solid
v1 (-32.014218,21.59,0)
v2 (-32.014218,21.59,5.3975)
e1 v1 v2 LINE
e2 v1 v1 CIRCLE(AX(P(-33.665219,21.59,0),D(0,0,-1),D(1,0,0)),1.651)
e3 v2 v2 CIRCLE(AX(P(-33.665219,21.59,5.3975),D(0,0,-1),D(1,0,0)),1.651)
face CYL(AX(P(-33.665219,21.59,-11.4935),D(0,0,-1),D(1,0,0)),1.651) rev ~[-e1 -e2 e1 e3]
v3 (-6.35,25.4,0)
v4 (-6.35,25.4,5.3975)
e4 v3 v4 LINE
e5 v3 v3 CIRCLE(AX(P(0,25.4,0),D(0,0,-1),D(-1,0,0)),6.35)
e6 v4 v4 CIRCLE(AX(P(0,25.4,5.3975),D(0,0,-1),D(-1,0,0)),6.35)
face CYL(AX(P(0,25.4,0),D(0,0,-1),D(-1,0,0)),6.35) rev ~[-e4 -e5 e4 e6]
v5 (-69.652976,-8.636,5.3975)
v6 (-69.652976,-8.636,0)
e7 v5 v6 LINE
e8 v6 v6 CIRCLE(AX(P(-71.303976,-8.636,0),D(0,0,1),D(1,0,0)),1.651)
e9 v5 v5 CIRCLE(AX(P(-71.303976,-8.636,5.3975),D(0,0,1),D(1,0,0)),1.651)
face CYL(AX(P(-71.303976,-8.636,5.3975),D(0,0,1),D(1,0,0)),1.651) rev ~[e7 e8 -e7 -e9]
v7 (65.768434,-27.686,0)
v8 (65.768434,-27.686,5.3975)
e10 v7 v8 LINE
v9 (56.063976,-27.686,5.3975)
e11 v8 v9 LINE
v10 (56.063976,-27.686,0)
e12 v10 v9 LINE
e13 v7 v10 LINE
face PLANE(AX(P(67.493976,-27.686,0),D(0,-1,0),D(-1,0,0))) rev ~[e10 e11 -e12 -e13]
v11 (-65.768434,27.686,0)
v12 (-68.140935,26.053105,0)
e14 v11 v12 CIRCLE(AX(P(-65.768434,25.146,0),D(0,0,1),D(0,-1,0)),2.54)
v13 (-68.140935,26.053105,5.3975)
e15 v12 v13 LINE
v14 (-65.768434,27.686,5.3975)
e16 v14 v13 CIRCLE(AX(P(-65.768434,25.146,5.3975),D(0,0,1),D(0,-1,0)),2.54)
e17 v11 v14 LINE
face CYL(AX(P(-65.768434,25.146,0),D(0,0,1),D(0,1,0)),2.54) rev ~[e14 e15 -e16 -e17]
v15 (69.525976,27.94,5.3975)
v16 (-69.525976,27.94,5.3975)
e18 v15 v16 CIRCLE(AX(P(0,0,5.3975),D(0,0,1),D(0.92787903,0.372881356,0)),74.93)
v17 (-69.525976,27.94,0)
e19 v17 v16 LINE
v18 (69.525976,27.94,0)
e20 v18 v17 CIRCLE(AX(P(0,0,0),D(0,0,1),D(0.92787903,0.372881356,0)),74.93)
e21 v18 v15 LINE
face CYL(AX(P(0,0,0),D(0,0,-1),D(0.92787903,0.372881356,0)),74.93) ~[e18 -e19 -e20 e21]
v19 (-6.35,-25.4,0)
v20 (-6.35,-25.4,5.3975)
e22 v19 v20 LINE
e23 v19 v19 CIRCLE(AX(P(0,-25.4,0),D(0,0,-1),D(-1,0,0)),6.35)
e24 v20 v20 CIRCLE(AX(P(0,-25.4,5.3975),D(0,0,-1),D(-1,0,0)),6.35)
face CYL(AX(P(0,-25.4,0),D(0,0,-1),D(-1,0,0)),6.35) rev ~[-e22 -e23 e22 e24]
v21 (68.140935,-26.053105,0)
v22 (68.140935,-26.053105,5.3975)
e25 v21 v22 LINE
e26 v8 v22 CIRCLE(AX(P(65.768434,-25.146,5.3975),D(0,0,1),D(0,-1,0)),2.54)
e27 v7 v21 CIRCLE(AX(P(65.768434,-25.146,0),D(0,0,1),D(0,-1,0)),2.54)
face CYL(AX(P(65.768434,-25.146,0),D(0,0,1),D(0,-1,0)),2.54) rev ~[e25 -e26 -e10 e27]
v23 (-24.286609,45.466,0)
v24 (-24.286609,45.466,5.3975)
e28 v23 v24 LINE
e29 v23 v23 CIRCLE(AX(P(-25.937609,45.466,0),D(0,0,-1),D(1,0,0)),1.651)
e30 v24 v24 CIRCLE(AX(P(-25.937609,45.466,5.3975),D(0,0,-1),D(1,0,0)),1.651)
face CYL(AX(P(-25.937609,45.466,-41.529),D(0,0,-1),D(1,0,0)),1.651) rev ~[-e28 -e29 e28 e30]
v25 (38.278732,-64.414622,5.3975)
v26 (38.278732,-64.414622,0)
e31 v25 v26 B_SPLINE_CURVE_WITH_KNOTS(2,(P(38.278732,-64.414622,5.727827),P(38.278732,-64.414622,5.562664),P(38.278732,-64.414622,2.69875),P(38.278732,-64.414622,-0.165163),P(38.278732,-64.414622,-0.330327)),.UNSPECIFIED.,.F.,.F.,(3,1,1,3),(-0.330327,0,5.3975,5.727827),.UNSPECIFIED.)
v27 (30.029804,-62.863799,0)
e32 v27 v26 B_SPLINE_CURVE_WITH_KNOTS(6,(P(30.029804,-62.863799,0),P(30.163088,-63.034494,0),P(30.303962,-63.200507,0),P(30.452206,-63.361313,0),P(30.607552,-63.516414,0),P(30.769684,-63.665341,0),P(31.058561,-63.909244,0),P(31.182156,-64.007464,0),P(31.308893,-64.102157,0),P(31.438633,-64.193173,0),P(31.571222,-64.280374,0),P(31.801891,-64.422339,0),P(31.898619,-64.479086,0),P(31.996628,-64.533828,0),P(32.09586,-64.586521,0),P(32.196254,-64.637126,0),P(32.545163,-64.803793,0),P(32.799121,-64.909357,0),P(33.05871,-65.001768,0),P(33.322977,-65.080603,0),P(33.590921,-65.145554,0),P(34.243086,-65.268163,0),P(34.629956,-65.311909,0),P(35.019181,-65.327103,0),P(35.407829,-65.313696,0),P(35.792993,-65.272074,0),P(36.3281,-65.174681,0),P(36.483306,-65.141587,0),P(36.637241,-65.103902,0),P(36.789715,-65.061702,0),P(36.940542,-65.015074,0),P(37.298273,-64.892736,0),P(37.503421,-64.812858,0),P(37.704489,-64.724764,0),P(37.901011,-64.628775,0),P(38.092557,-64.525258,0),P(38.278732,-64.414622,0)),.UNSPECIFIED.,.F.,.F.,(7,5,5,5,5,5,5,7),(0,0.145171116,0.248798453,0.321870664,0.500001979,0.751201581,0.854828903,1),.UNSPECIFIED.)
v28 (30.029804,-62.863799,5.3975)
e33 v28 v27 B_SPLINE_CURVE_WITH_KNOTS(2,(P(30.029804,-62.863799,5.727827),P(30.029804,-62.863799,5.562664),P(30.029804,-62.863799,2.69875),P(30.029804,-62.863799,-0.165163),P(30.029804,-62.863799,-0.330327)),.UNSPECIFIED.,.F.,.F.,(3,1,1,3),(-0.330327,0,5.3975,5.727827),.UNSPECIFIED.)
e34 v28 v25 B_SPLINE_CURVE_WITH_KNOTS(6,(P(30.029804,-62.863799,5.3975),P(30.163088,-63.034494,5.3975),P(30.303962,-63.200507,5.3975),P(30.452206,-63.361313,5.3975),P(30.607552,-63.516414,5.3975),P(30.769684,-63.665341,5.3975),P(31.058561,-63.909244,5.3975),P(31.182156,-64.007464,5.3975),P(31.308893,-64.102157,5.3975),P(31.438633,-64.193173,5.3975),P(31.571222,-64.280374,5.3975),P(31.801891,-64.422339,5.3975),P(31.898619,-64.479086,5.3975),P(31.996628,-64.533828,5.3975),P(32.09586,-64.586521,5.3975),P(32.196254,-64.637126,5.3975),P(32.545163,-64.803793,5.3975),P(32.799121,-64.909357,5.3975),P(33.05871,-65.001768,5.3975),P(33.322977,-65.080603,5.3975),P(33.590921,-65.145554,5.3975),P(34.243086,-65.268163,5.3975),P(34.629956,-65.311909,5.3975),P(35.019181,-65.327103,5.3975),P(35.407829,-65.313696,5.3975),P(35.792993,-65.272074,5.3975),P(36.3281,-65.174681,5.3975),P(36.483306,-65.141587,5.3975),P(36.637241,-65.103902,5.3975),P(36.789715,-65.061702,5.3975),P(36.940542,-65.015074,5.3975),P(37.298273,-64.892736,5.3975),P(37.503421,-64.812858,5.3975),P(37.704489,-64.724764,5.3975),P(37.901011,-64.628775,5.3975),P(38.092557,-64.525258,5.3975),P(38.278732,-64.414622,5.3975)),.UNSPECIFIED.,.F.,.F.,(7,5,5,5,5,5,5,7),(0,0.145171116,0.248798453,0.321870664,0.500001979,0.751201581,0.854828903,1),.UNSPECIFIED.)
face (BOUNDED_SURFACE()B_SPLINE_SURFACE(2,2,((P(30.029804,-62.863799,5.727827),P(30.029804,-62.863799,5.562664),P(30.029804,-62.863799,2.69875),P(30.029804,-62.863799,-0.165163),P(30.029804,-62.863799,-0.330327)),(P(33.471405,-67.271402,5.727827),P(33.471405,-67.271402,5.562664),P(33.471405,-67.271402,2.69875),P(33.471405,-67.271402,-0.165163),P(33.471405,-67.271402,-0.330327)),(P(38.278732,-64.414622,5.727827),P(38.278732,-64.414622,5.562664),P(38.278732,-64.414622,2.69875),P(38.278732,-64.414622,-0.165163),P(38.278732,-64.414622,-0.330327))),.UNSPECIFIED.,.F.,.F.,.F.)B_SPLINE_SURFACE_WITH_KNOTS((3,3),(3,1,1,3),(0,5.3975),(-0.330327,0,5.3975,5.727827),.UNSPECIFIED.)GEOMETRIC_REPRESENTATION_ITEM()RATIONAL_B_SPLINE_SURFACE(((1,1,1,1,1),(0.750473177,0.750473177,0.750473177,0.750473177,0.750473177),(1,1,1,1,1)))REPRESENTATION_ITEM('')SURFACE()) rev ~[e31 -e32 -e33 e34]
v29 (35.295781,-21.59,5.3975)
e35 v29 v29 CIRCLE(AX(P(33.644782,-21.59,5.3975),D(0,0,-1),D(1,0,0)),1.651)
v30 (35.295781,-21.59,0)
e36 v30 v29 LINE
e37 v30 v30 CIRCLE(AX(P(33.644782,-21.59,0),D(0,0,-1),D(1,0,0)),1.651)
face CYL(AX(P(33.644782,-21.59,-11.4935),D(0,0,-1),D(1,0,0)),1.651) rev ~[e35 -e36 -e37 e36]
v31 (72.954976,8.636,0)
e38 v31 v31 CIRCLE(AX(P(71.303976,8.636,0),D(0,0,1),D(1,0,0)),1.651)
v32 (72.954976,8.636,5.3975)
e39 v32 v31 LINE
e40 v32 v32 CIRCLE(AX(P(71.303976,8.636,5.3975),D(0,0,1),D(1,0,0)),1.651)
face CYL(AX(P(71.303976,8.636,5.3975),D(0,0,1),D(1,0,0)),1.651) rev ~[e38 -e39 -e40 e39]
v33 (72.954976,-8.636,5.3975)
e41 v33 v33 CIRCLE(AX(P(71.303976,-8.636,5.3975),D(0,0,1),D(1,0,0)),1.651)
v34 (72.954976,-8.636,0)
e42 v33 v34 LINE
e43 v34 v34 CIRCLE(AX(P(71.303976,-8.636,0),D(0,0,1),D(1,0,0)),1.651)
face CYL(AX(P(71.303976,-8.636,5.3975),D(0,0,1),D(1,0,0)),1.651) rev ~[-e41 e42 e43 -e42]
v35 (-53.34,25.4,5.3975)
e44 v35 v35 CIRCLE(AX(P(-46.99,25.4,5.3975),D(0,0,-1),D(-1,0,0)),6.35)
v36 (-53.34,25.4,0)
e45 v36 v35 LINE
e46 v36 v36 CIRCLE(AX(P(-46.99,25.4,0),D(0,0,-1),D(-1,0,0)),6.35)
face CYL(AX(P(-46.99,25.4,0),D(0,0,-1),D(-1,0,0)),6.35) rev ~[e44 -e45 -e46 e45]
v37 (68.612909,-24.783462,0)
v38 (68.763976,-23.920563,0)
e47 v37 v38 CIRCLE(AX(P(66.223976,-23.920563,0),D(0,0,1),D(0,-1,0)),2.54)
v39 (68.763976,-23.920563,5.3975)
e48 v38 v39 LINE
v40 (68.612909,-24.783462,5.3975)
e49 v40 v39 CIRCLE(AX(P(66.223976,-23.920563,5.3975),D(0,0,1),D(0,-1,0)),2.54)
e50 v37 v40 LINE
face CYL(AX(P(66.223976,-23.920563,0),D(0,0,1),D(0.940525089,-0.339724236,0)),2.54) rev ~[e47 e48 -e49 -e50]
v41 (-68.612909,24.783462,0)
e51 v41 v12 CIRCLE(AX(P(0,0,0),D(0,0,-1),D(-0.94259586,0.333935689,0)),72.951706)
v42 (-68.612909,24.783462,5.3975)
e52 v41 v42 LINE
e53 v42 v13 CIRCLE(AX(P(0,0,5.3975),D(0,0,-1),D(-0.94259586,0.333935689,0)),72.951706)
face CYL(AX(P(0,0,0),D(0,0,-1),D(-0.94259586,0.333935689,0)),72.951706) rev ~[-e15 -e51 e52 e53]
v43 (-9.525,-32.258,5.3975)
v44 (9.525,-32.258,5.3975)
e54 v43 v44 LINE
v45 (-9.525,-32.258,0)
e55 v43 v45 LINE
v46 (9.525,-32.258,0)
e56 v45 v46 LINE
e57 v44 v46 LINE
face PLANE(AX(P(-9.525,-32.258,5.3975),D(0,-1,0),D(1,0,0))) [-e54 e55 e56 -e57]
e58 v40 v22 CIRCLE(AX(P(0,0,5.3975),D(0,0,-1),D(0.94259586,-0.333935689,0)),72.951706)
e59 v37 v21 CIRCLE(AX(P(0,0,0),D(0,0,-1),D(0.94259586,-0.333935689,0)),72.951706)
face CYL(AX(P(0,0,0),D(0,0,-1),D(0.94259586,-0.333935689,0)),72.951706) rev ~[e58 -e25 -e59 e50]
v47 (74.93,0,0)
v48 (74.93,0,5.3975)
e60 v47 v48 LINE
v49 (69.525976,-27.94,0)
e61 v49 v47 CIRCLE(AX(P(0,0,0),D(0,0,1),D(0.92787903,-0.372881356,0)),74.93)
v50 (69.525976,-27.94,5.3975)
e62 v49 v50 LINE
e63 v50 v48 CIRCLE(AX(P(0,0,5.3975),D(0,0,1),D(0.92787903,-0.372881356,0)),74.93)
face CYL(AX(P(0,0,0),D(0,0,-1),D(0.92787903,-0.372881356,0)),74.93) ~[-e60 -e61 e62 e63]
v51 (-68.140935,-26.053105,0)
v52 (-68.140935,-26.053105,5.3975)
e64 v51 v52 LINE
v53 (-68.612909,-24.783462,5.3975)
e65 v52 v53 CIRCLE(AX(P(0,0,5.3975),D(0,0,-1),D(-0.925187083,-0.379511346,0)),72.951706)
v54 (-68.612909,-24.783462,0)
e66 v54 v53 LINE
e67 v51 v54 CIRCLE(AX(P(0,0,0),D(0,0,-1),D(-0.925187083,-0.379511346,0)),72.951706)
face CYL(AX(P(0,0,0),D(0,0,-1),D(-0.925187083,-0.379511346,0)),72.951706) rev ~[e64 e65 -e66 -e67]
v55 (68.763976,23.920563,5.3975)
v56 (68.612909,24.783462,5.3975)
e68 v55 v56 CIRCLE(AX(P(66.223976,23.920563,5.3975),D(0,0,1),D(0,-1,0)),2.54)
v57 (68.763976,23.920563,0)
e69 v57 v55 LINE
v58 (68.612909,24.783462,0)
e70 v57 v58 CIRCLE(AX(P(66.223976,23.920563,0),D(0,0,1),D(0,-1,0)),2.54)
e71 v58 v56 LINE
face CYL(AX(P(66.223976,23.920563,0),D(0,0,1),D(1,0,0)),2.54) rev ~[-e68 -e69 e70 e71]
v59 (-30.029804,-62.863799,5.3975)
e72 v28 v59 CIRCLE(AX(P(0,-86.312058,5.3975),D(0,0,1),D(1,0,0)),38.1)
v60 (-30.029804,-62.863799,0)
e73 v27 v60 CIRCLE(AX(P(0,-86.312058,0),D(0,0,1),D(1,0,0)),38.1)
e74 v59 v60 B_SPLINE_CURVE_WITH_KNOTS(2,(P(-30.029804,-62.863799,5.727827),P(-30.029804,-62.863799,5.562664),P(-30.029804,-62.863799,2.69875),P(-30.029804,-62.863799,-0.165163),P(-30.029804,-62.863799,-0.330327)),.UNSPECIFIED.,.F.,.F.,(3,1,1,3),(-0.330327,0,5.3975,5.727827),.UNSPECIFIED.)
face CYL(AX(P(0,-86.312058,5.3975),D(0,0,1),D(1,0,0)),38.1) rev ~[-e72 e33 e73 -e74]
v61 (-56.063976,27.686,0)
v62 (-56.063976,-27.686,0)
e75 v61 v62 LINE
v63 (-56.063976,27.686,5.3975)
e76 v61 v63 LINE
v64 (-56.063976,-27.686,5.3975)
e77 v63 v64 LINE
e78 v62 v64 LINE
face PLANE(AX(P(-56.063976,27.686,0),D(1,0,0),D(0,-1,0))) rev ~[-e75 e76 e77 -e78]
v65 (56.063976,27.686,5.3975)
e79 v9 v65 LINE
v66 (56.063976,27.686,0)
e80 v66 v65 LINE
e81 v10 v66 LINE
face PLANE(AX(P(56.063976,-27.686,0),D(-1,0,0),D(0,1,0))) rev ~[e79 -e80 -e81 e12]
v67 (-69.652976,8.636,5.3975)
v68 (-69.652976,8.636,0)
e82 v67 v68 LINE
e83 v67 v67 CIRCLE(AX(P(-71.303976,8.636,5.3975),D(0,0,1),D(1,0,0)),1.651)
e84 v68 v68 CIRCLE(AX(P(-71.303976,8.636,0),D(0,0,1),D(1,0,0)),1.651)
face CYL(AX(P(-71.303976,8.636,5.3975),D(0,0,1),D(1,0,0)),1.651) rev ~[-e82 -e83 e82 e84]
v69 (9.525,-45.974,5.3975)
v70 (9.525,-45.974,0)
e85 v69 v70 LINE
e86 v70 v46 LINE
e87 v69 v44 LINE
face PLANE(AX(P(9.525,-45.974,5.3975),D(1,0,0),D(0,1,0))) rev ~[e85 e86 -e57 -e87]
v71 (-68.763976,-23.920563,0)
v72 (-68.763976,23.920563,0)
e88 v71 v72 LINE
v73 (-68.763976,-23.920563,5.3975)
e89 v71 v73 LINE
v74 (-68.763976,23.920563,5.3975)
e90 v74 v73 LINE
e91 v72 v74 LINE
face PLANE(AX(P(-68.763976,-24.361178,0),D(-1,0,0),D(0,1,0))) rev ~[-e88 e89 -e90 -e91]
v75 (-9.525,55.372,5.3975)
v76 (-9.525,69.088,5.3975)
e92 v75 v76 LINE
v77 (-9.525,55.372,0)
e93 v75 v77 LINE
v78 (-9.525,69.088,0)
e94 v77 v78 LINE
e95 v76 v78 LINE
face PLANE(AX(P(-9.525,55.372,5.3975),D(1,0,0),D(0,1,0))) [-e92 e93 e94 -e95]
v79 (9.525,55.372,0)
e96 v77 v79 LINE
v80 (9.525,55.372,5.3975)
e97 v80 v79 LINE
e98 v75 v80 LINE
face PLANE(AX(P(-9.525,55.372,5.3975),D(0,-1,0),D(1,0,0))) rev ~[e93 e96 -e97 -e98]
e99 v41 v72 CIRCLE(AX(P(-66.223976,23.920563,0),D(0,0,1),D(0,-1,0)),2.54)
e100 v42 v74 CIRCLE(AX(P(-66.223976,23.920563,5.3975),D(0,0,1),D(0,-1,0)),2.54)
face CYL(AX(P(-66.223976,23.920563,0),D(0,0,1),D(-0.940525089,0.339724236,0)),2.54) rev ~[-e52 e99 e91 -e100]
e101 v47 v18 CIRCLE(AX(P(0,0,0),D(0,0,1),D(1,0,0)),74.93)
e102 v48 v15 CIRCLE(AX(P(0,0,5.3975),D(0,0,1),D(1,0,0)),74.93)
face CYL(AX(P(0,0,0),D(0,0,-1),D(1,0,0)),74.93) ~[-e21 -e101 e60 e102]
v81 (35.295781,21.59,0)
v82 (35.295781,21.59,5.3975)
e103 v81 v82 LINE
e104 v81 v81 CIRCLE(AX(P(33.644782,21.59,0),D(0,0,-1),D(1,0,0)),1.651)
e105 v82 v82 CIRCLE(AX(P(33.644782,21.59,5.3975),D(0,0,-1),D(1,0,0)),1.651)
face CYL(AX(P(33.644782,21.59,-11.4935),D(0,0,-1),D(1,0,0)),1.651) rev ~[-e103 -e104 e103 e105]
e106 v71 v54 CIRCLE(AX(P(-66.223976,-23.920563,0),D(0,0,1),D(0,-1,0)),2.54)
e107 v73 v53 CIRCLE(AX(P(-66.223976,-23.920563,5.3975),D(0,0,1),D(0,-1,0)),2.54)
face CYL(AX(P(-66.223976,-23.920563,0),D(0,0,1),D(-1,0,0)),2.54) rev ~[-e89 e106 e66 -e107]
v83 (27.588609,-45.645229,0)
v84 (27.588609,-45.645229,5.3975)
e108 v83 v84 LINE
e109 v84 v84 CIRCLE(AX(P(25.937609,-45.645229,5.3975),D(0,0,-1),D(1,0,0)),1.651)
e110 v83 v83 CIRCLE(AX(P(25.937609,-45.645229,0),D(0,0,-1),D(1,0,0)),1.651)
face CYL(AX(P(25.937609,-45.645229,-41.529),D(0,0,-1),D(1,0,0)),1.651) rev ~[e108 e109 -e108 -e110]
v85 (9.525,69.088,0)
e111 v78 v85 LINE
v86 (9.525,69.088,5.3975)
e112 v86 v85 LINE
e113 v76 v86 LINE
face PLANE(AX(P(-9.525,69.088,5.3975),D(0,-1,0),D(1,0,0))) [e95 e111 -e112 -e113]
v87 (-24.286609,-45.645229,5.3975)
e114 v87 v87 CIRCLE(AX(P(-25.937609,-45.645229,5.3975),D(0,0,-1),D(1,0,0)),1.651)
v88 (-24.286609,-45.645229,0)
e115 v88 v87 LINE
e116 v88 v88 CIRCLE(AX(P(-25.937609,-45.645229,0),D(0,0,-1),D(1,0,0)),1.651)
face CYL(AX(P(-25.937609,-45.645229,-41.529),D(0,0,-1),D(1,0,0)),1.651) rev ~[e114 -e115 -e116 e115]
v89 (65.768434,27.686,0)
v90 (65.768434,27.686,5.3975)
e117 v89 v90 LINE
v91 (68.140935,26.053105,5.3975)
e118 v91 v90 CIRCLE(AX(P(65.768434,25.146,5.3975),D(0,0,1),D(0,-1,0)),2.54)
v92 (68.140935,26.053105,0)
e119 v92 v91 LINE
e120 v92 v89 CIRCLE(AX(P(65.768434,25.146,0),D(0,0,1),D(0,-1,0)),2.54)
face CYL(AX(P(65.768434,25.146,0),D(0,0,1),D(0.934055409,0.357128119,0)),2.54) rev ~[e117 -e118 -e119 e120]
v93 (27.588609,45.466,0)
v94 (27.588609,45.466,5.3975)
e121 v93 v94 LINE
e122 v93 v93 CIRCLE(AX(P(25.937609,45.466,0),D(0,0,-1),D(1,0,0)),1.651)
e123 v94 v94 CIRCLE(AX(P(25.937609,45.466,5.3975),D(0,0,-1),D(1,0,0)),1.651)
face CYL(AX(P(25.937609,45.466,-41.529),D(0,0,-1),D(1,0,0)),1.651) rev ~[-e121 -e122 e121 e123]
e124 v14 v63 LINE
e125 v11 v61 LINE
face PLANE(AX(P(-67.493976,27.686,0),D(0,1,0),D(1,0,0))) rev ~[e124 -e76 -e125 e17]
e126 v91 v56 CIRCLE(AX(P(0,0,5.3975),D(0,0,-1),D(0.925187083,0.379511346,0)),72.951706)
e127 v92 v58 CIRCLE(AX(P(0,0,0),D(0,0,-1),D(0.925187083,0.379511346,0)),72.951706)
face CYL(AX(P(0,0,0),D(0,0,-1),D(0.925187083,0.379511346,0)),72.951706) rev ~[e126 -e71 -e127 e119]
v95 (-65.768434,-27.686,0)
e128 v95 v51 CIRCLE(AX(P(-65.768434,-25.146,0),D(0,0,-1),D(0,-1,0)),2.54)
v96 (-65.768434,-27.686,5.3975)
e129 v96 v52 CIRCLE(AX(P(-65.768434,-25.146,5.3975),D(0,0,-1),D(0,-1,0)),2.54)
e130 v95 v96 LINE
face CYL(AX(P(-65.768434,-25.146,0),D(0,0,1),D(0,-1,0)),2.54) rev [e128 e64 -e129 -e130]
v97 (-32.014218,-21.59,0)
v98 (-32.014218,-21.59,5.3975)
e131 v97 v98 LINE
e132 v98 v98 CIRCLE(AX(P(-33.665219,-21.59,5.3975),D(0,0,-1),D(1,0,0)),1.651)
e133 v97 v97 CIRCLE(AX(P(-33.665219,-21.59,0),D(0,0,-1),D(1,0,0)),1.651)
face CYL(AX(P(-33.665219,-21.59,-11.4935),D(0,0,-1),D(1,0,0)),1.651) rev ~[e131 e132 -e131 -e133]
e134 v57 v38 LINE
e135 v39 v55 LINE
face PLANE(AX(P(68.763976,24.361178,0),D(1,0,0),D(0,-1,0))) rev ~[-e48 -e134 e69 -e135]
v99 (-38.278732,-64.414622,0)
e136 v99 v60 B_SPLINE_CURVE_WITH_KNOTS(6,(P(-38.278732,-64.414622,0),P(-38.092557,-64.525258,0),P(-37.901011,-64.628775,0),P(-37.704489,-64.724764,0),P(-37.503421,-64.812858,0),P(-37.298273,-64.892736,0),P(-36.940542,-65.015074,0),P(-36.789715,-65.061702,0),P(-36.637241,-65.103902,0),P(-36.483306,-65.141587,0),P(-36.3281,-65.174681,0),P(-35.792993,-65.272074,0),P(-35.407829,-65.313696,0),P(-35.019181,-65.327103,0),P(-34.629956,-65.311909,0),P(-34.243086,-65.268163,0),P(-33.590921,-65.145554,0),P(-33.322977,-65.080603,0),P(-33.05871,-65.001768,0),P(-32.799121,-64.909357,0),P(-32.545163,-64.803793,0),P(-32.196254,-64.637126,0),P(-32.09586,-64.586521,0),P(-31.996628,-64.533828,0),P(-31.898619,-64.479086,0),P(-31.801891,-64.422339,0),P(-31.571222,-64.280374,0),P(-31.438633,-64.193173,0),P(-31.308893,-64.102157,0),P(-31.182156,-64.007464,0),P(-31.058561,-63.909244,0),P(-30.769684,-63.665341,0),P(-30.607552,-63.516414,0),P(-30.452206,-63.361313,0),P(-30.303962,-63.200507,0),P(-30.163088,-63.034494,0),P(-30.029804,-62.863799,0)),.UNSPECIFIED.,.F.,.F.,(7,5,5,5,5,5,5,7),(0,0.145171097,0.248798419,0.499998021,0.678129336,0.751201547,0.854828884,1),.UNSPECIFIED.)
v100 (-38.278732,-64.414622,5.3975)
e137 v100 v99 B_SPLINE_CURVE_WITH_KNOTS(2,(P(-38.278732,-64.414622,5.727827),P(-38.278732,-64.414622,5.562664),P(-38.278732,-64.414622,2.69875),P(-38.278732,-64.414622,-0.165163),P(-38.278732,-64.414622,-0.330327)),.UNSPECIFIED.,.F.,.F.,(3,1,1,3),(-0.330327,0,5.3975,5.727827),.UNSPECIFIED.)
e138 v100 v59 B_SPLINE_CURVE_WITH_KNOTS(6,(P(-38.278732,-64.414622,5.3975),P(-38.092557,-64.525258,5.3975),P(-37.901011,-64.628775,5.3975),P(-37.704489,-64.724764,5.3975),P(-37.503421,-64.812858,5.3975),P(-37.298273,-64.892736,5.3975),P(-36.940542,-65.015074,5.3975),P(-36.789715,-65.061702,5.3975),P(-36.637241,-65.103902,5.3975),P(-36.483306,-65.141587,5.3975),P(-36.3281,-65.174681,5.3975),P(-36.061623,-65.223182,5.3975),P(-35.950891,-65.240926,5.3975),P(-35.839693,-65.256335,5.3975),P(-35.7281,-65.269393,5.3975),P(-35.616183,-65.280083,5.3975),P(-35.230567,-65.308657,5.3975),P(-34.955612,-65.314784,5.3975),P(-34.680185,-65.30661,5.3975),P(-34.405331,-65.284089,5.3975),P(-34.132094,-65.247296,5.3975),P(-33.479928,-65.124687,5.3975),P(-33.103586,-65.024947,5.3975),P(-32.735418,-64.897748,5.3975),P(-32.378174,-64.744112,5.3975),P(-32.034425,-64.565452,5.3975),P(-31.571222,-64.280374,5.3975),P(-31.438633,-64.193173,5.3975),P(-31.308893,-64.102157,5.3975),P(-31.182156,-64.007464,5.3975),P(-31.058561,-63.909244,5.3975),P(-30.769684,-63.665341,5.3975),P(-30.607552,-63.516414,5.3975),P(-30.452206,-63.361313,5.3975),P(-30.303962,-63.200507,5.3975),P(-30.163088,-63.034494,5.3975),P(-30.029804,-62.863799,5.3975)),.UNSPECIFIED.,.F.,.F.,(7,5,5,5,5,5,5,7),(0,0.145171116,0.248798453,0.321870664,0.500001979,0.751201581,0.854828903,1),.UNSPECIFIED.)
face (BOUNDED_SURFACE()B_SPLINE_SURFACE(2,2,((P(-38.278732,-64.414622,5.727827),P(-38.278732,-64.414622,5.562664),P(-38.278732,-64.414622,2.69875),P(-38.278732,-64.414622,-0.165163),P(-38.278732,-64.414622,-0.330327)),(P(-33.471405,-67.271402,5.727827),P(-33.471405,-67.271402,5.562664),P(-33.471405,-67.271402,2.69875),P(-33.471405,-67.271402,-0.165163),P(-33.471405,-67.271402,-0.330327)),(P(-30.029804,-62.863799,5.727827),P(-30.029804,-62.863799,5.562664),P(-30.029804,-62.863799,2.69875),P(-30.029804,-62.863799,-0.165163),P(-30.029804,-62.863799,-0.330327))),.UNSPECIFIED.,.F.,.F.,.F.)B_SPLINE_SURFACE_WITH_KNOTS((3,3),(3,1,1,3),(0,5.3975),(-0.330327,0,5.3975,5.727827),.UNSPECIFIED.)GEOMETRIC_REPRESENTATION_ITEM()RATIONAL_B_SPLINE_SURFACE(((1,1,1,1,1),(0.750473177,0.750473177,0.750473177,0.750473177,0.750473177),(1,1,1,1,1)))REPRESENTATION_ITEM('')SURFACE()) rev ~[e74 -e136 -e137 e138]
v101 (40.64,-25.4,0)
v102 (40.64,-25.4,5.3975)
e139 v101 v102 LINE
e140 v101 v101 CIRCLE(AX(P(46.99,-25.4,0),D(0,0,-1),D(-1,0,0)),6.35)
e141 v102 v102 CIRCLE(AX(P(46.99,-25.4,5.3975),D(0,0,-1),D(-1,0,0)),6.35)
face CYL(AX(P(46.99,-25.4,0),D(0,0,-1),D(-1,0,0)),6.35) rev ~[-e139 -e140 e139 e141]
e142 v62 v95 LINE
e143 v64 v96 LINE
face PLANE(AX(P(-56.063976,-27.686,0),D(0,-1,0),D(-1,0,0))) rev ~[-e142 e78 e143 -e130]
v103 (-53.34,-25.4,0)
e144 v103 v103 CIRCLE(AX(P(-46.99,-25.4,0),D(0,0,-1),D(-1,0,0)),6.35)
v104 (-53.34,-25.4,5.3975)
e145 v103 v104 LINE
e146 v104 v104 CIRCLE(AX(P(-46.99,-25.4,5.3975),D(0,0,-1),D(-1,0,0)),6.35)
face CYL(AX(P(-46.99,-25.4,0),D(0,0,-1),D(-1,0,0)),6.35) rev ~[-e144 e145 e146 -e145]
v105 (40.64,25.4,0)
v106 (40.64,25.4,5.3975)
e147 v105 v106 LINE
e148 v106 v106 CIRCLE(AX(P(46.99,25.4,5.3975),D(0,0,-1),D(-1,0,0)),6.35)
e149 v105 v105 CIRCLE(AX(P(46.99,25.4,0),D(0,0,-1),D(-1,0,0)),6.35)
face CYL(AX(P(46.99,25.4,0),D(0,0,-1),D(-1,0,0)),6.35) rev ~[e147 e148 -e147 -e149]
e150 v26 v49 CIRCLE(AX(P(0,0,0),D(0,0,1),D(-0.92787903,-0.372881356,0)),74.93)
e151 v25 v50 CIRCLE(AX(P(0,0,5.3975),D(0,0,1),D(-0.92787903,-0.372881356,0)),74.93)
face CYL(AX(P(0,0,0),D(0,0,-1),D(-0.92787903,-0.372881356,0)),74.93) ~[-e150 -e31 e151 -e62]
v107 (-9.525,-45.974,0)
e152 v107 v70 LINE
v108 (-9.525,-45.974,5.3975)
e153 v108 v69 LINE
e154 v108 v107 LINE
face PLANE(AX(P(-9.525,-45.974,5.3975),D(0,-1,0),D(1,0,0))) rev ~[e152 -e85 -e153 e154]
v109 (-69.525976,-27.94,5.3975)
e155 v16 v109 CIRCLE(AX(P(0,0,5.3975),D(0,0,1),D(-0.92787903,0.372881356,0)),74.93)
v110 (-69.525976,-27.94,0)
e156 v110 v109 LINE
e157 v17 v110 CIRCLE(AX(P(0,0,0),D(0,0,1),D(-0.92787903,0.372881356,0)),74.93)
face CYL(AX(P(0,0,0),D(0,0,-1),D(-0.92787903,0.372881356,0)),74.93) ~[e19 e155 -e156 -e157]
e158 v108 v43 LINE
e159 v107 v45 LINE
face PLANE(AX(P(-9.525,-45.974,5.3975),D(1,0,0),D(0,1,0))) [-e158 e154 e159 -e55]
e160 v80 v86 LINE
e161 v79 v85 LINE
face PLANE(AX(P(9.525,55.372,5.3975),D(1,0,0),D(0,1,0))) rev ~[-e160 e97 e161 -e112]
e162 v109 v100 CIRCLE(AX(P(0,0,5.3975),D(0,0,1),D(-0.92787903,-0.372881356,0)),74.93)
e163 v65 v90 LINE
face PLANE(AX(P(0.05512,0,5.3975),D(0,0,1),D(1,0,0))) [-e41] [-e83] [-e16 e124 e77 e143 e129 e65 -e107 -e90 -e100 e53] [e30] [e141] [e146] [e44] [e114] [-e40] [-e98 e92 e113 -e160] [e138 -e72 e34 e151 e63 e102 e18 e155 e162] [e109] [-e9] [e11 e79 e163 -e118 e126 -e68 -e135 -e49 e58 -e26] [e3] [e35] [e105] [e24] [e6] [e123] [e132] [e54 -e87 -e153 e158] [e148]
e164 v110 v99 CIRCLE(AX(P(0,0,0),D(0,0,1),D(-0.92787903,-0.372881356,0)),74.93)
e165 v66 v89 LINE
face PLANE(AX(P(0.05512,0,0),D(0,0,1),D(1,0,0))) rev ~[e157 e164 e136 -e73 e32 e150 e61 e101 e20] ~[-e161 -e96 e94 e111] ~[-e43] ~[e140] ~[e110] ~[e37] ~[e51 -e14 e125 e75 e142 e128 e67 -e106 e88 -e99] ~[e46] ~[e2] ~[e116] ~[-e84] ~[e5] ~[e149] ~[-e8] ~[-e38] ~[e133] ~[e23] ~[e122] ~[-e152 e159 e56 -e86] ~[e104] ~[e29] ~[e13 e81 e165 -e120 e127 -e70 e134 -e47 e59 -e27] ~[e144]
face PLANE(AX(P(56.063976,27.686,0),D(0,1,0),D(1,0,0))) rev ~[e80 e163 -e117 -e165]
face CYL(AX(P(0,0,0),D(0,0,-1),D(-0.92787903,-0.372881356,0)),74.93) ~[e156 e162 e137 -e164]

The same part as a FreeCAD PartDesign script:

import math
import FreeCAD as App
import Part
import Sketcher
Q = App.Units.Quantity


def edges_at(feature, points):
    """Names of the edges that pass closest to the given points."""
    edges = feature.Shape.Edges
    near = lambda p: min(range(len(edges)), key=lambda i: edges[i].distToShape(Part.Vertex(*p))[0])
    return sorted({f"Edge{near(p) + 1}" for p in points})

doc = App.newDocument("Part")
body = doc.addObject("PartDesign::Body", "Body")

# Sketch on XY plane
sketch1 = body.newObject("Sketcher::SketchObject", "Sketch")
sketch1.AttachmentSupport = (doc.getObject("XY_Plane"), [""])
sketch1.MapMode = "FlatFace"
sketch1.addGeometry(Part.ArcOfCircle(Part.Circle(App.Vector(0, 0, 0), App.Vector(0, 0, 1), 74.93), math.radians(158.106572), math.radians(201.893428)), False)
sketch1.addGeometry(Part.ArcOfCircle(Part.Circle(App.Vector(0, 0, 0), App.Vector(0, 0, 1), 74.93), math.radians(-158.106572), math.radians(-21.893428)), False)
sketch1.addGeometry(Part.ArcOfCircle(Part.Circle(App.Vector(0, 0, 0), App.Vector(0, 0, 1), 74.93), math.radians(-21.893428), math.radians(0)), False)
sketch1.addGeometry(Part.ArcOfCircle(Part.Circle(App.Vector(0, 0, 0), App.Vector(0, 0, 1), 74.93), math.radians(0), math.radians(21.893428)), False)
sketch1.addGeometry(Part.ArcOfCircle(Part.Circle(App.Vector(0, 0, 0), App.Vector(0, 0, 1), 74.93), math.radians(21.893428), math.radians(158.106572)), False)
sketch1.addGeometry(Part.LineSegment(App.Vector(-67.493976, -27.686, 0), App.Vector(-67.493976, 27.686, 0)), False)
sketch1.addGeometry(Part.LineSegment(App.Vector(-67.493976, 27.686, 0), App.Vector(-56.063976, 27.686, 0)), False)
sketch1.addGeometry(Part.LineSegment(App.Vector(-56.063976, 27.686, 0), App.Vector(-56.063976, -27.686, 0)), False)
sketch1.addGeometry(Part.LineSegment(App.Vector(-56.063976, -27.686, 0), App.Vector(-67.493976, -27.686, 0)), False)
sketch1.addGeometry(Part.LineSegment(App.Vector(56.063976, 27.686, 0), App.Vector(67.493976, 27.686, 0)), False)
sketch1.addGeometry(Part.LineSegment(App.Vector(67.493976, 27.686, 0), App.Vector(67.493976, -27.686, 0)), False)
sketch1.addGeometry(Part.LineSegment(App.Vector(67.493976, -27.686, 0), App.Vector(56.063976, -27.686, 0)), False)
sketch1.addGeometry(Part.LineSegment(App.Vector(56.063976, -27.686, 0), App.Vector(56.063976, 27.686, 0)), False)
sketch1.addConstraint(Sketcher.Constraint("Tangent", 0, 2, 1, 1))
sketch1.addConstraint(Sketcher.Constraint("Tangent", 1, 2, 2, 1))
sketch1.addConstraint(Sketcher.Constraint("Tangent", 2, 2, 3, 1))
sketch1.addConstraint(Sketcher.Constraint("Tangent", 3, 2, 4, 1))
sketch1.addConstraint(Sketcher.Constraint("Tangent", 4, 2, 0, 1))
sketch1.addConstraint(Sketcher.Constraint("Coincident", 5, 2, 6, 1))
sketch1.addConstraint(Sketcher.Constraint("Coincident", 6, 2, 7, 1))
sketch1.addConstraint(Sketcher.Constraint("Coincident", 7, 2, 8, 1))
sketch1.addConstraint(Sketcher.Constraint("Coincident", 8, 2, 5, 1))
sketch1.addConstraint(Sketcher.Constraint("Coincident", 9, 2, 10, 1))
sketch1.addConstraint(Sketcher.Constraint("Coincident", 10, 2, 11, 1))
sketch1.addConstraint(Sketcher.Constraint("Coincident", 11, 2, 12, 1))
sketch1.addConstraint(Sketcher.Constraint("Coincident", 12, 2, 9, 1))
sketch1.addConstraint(Sketcher.Constraint("Vertical", 5))
sketch1.addConstraint(Sketcher.Constraint("Horizontal", 6))
sketch1.addConstraint(Sketcher.Constraint("Vertical", 7))
sketch1.addConstraint(Sketcher.Constraint("Horizontal", 8))
sketch1.addConstraint(Sketcher.Constraint("Horizontal", 9))
sketch1.addConstraint(Sketcher.Constraint("Vertical", 10))
sketch1.addConstraint(Sketcher.Constraint("Horizontal", 11))
sketch1.addConstraint(Sketcher.Constraint("Vertical", 12))
sketch1.addConstraint(Sketcher.Constraint("Coincident", 0, 3, -1, 1))
sketch1.addConstraint(Sketcher.Constraint("Coincident", 2, 3, -1, 1))
sketch1.addConstraint(Sketcher.Constraint("Symmetric", 8, 2, 9, 2, -1, 1))
sketch1.addConstraint(Sketcher.Constraint("Symmetric", 6, 2, 11, 2, -1, 1))
sketch1.addConstraint(Sketcher.Constraint("PointOnObject", 2, 2, -1))
sketch1.addConstraint(Sketcher.Constraint("Horizontal", 0, 2, 1, 2))
sketch1.addConstraint(Sketcher.Constraint("Horizontal", 3, 2, 4, 2))
sketch1.addConstraint(Sketcher.Constraint("Horizontal", 6, 2, 9, 2))
sketch1.addConstraint(Sketcher.Constraint("Vertical", 1, 2, 3, 2))
sketch1.addConstraint(Sketcher.Constraint("Radius", 0, Q("2.95 in")))
sketch1.addConstraint(Sketcher.Constraint("DistanceX", 6, 1, 6, 2, Q("0.45 in")))
sketch1.addConstraint(Sketcher.Constraint("DistanceY", 5, 1, 5, 2, Q("2.18 in")))
sketch1.addConstraint(Sketcher.Constraint("DistanceY", 0, 2, -1, 1, Q("1.1 in")))
sketch1.addConstraint(Sketcher.Constraint("DistanceX", 4, 2, 5, 2, Q("0.08 in")))
pad1 = body.newObject("PartDesign::Pad", "Pad")
pad1.Profile = sketch1
pad1.Length = Q("0.2125 in")

# Sketch on XY plane
sketch2 = body.newObject("Sketcher::SketchObject", "Sketch001")
sketch2.AttachmentSupport = (doc.getObject("XY_Plane"), [""])
sketch2.MapMode = "FlatFace"
sketch2.AttachmentOffset = App.Placement(App.Vector(0, 0, 0.2125 * 25.4), App.Rotation())
sketch2.addGeometry(Part.LineSegment(App.Vector(-9.525, 69.088, 0), App.Vector(-9.525, 55.372, 0)), False)
sketch2.addGeometry(Part.LineSegment(App.Vector(-9.525, 55.372, 0), App.Vector(9.525, 55.372, 0)), False)
sketch2.addGeometry(Part.LineSegment(App.Vector(9.525, 55.372, 0), App.Vector(9.525, 69.088, 0)), False)
sketch2.addGeometry(Part.LineSegment(App.Vector(9.525, 69.088, 0), App.Vector(-9.525, 69.088, 0)), False)
sketch2.addConstraint(Sketcher.Constraint("Coincident", 0, 2, 1, 1))
sketch2.addConstraint(Sketcher.Constraint("Coincident", 1, 2, 2, 1))
sketch2.addConstraint(Sketcher.Constraint("Coincident", 2, 2, 3, 1))
sketch2.addConstraint(Sketcher.Constraint("Coincident", 3, 2, 0, 1))
sketch2.addConstraint(Sketcher.Constraint("Vertical", 0))
sketch2.addConstraint(Sketcher.Constraint("Horizontal", 1))
sketch2.addConstraint(Sketcher.Constraint("Vertical", 2))
sketch2.addConstraint(Sketcher.Constraint("Horizontal", 3))
sketch2.addConstraint(Sketcher.Constraint("DistanceX", 1, 1, 1, 2, Q("0.75 in")))
sketch2.addConstraint(Sketcher.Constraint("DistanceY", 0, 2, 0, 1, Q("0.54 in")))
sketch2.addConstraint(Sketcher.Constraint("DistanceY", -1, 1, 0, 2, Q("2.18 in")))
sketch2.addConstraint(Sketcher.Constraint("DistanceX", 0, 2, -1, 1, Q("0.375 in")))
pocket1 = body.newObject("PartDesign::Pocket", "Pocket")
pocket1.Profile = sketch2
pocket1.Type = "ThroughAll"

# Sketch on XY plane
sketch3 = body.newObject("Sketcher::SketchObject", "Sketch002")
sketch3.AttachmentSupport = (doc.getObject("XY_Plane"), [""])
sketch3.MapMode = "FlatFace"
sketch3.AttachmentOffset = App.Placement(App.Vector(0, 0, 0.2125 * 25.4), App.Rotation())
sketch3.addGeometry(Part.Circle(App.Vector(0, -86.312058, 0), App.Vector(0, 0, 1), 38.1), False)
sketch3.addConstraint(Sketcher.Constraint("PointOnObject", 0, 3, -2))
sketch3.addConstraint(Sketcher.Constraint("Diameter", 0, Q("3 in")))
sketch3.addConstraint(Sketcher.Constraint("DistanceY", 0, 3, -1, 1, 86.312058))
pocket2 = body.newObject("PartDesign::Pocket", "Pocket001")
pocket2.Profile = sketch3
pocket2.Type = "ThroughAll"
doc.recompute()

fillet = body.newObject("PartDesign::Fillet", "Fillet")
fillet.Base = (pocket2, edges_at(pocket2, [(-33.001, -67.271, 2.699), (33.001, -67.271, 2.699)]))
fillet.Radius = Q("0.25 in")

# Sketch on XY plane
sketch4 = body.newObject("Sketcher::SketchObject", "Sketch003")
sketch4.AttachmentSupport = (doc.getObject("XY_Plane"), [""])
sketch4.MapMode = "FlatFace"
sketch4.AttachmentOffset = App.Placement(App.Vector(0, 0, -0.4525 * 25.4), App.Rotation())
sketch4.addGeometry(Part.Circle(App.Vector(-33.665219, 21.59, 0), App.Vector(0, 0, 1), 1.651), False)
sketch4.addGeometry(Part.Circle(App.Vector(-33.665219, -21.59, 0), App.Vector(0, 0, 1), 1.651), False)
sketch4.addGeometry(Part.Circle(App.Vector(33.644782, -21.59, 0), App.Vector(0, 0, 1), 1.651), False)
sketch4.addGeometry(Part.Circle(App.Vector(33.644782, 21.59, 0), App.Vector(0, 0, 1), 1.651), False)
sketch4.addConstraint(Sketcher.Constraint("Equal", 0, 1))
sketch4.addConstraint(Sketcher.Constraint("Equal", 1, 2))
sketch4.addConstraint(Sketcher.Constraint("Equal", 2, 3))
sketch4.addConstraint(Sketcher.Constraint("Symmetric", 0, 3, 1, 3, -1))
sketch4.addConstraint(Sketcher.Constraint("Symmetric", 2, 3, 3, 3, -1))
sketch4.addConstraint(Sketcher.Constraint("Horizontal", 1, 3, 2, 3))
sketch4.addConstraint(Sketcher.Constraint("Diameter", 0, Q("0.13 in")))
sketch4.addConstraint(Sketcher.Constraint("DistanceY", 1, 3, 0, 3, Q("1.7 in")))
sketch4.addConstraint(Sketcher.Constraint("DistanceX", 1, 3, 2, 3, Q("2.65 in")))
sketch4.addConstraint(Sketcher.Constraint("DistanceX", 0, 3, -1, 1, 33.665219))
pocket3 = body.newObject("PartDesign::Pocket", "Pocket002")
pocket3.Profile = sketch4
pocket3.Length = Q("2.98 in")
pocket3.Reversed = True

# Sketch on XY plane
sketch5 = body.newObject("Sketcher::SketchObject", "Sketch004")
sketch5.AttachmentSupport = (doc.getObject("XY_Plane"), [""])
sketch5.MapMode = "FlatFace"
sketch5.AttachmentOffset = App.Placement(App.Vector(0, 0, -1.635 * 25.4), App.Rotation())
sketch5.addGeometry(Part.Circle(App.Vector(25.937609, -45.645229, 0), App.Vector(0, 0, 1), 1.651), False)
sketch5.addGeometry(Part.Circle(App.Vector(-25.937609, -45.645229, 0), App.Vector(0, 0, 1), 1.651), False)
sketch5.addGeometry(Part.Circle(App.Vector(25.937609, 45.466, 0), App.Vector(0, 0, 1), 1.651), False)
sketch5.addGeometry(Part.Circle(App.Vector(-25.937609, 45.466, 0), App.Vector(0, 0, 1), 1.651), False)
sketch5.addConstraint(Sketcher.Constraint("Equal", 0, 1))
sketch5.addConstraint(Sketcher.Constraint("Equal", 1, 2))
sketch5.addConstraint(Sketcher.Constraint("Equal", 2, 3))
sketch5.addConstraint(Sketcher.Constraint("Symmetric", 0, 3, 1, 3, -2))
sketch5.addConstraint(Sketcher.Constraint("Symmetric", 2, 3, 3, 3, -2))
sketch5.addConstraint(Sketcher.Constraint("Vertical", 0, 3, 2, 3))
sketch5.addConstraint(Sketcher.Constraint("Diameter", 0, Q("0.13 in")))
sketch5.addConstraint(Sketcher.Constraint("DistanceY", -1, 1, 2, 3, Q("1.79 in")))
sketch5.addConstraint(Sketcher.Constraint("DistanceX", -1, 1, 0, 3, 25.937609))
sketch5.addConstraint(Sketcher.Constraint("DistanceY", 0, 3, -1, 1, 45.645229))
pocket4 = body.newObject("PartDesign::Pocket", "Pocket003")
pocket4.Profile = sketch5
pocket4.Length = Q("3.85 in")
pocket4.Reversed = True

# Sketch on XY plane
sketch6 = body.newObject("Sketcher::SketchObject", "Sketch005")
sketch6.AttachmentSupport = (doc.getObject("XY_Plane"), [""])
sketch6.MapMode = "FlatFace"
sketch6.AttachmentOffset = App.Placement(App.Vector(0, 0, 0.2125 * 25.4), App.Rotation())
sketch6.addGeometry(Part.Circle(App.Vector(-71.303976, -8.636, 0), App.Vector(0, 0, 1), 1.651), False)
sketch6.addGeometry(Part.Circle(App.Vector(-71.303976, 8.636, 0), App.Vector(0, 0, 1), 1.651), False)
sketch6.addGeometry(Part.Circle(App.Vector(71.303976, -8.636, 0), App.Vector(0, 0, 1), 1.651), False)
sketch6.addGeometry(Part.Circle(App.Vector(71.303976, 8.636, 0), App.Vector(0, 0, 1), 1.651), False)
sketch6.addConstraint(Sketcher.Constraint("Equal", 0, 1))
sketch6.addConstraint(Sketcher.Constraint("Equal", 1, 2))
sketch6.addConstraint(Sketcher.Constraint("Equal", 2, 3))
sketch6.addConstraint(Sketcher.Constraint("Symmetric", 1, 3, 2, 3, -1, 1))
sketch6.addConstraint(Sketcher.Constraint("Symmetric", 0, 3, 3, 3, -1, 1))
sketch6.addConstraint(Sketcher.Constraint("Symmetric", 0, 3, 2, 3, -2))
sketch6.addConstraint(Sketcher.Constraint("Diameter", 0, Q("0.13 in")))
sketch6.addConstraint(Sketcher.Constraint("DistanceY", 0, 3, -1, 1, Q("0.34 in")))
sketch6.addConstraint(Sketcher.Constraint("DistanceX", 0, 3, 2, 3, 142.607951))
pocket5 = body.newObject("PartDesign::Pocket", "Pocket004")
pocket5.Profile = sketch6
pocket5.Length = Q("5.94 in")

# Sketch on XY plane
sketch7 = body.newObject("Sketcher::SketchObject", "Sketch006")
sketch7.AttachmentSupport = (doc.getObject("XY_Plane"), [""])
sketch7.MapMode = "FlatFace"
sketch7.AttachmentOffset = App.Placement(App.Vector(0, 0, -0.2125 * 25.4), App.Rotation())
sketch7.addGeometry(Part.Circle(App.Vector(46.99, 25.4, 0), App.Vector(0, 0, 1), 3.175), False)
sketch7.addGeometry(Part.Circle(App.Vector(-46.99, 25.4, 0), App.Vector(0, 0, 1), 3.175), False)
sketch7.addGeometry(Part.Circle(App.Vector(0, 25.4, 0), App.Vector(0, 0, 1), 3.175), False)
sketch7.addGeometry(Part.Circle(App.Vector(-46.99, -25.4, 0), App.Vector(0, 0, 1), 3.175), False)
sketch7.addGeometry(Part.Circle(App.Vector(0, -25.4, 0), App.Vector(0, 0, 1), 3.175), False)
sketch7.addGeometry(Part.Circle(App.Vector(46.99, -25.4, 0), App.Vector(0, 0, 1), 3.175), False)
sketch7.addConstraint(Sketcher.Constraint("Equal", 0, 1))
sketch7.addConstraint(Sketcher.Constraint("Equal", 1, 2))
sketch7.addConstraint(Sketcher.Constraint("Equal", 2, 3))
sketch7.addConstraint(Sketcher.Constraint("Equal", 3, 4))
sketch7.addConstraint(Sketcher.Constraint("Equal", 4, 5))
sketch7.addConstraint(Sketcher.Constraint("Symmetric", 0, 3, 3, 3, -1, 1))
sketch7.addConstraint(Sketcher.Constraint("Symmetric", 2, 3, 4, 3, -1, 1))
sketch7.addConstraint(Sketcher.Constraint("Symmetric", 1, 3, 5, 3, -1, 1))
sketch7.addConstraint(Sketcher.Constraint("Symmetric", 0, 3, 1, 3, -2))
sketch7.addConstraint(Sketcher.Constraint("PointOnObject", 2, 3, -2))
sketch7.addConstraint(Sketcher.Constraint("Horizontal", 1, 3, 2, 3))
sketch7.addConstraint(Sketcher.Constraint("Diameter", 0, Q("0.25 in")))
sketch7.addConstraint(Sketcher.Constraint("DistanceY", -1, 1, 0, 3, Q("1 in")))
sketch7.addConstraint(Sketcher.Constraint("DistanceX", 1, 3, 0, 3, Q("3.7 in")))
pocket6 = body.newObject("PartDesign::Pocket", "Pocket005")
pocket6.Profile = sketch7
pocket6.Type = "ThroughAll"
pocket6.Midplane = True

# Sketch on XY plane
sketch8 = body.newObject("Sketcher::SketchObject", "Sketch007")
sketch8.AttachmentSupport = (doc.getObject("XY_Plane"), [""])
sketch8.MapMode = "FlatFace"
sketch8.addGeometry(Part.Circle(App.Vector(-46.99, 25.4, 0), App.Vector(0, 0, 1), 6.35), False)
sketch8.addGeometry(Part.Circle(App.Vector(0, 25.4, 0), App.Vector(0, 0, 1), 6.35), False)
sketch8.addGeometry(Part.Circle(App.Vector(46.99, 25.4, 0), App.Vector(0, 0, 1), 6.35), False)
sketch8.addGeometry(Part.Circle(App.Vector(46.99, -25.4, 0), App.Vector(0, 0, 1), 6.35), False)
sketch8.addGeometry(Part.Circle(App.Vector(0, -25.4, 0), App.Vector(0, 0, 1), 6.35), False)
sketch8.addGeometry(Part.Circle(App.Vector(-46.99, -25.4, 0), App.Vector(0, 0, 1), 6.35), False)
sketch8.addConstraint(Sketcher.Constraint("Equal", 0, 1))
sketch8.addConstraint(Sketcher.Constraint("Equal", 1, 2))
sketch8.addConstraint(Sketcher.Constraint("Equal", 2, 3))
sketch8.addConstraint(Sketcher.Constraint("Equal", 3, 4))
sketch8.addConstraint(Sketcher.Constraint("Equal", 4, 5))
sketch8.addConstraint(Sketcher.Constraint("Symmetric", 0, 3, 3, 3, -1, 1))
sketch8.addConstraint(Sketcher.Constraint("Symmetric", 1, 3, 4, 3, -1, 1))
sketch8.addConstraint(Sketcher.Constraint("Symmetric", 2, 3, 5, 3, -1, 1))
sketch8.addConstraint(Sketcher.Constraint("Symmetric", 0, 3, 2, 3, -2))
sketch8.addConstraint(Sketcher.Constraint("PointOnObject", 1, 3, -2))
sketch8.addConstraint(Sketcher.Constraint("Horizontal", 0, 3, 1, 3))
sketch8.addConstraint(Sketcher.Constraint("Diameter", 0, Q("0.5 in")))
sketch8.addConstraint(Sketcher.Constraint("DistanceY", -1, 1, 0, 3, Q("1 in")))
sketch8.addConstraint(Sketcher.Constraint("DistanceX", 0, 3, 2, 3, Q("3.7 in")))
pocket7 = body.newObject("PartDesign::Pocket", "Pocket006")
pocket7.Profile = sketch8
pocket7.Length = Q("1.04 in")
pocket7.Reversed = True

# Sketch on XY plane
sketch9 = body.newObject("Sketcher::SketchObject", "Sketch008")
sketch9.AttachmentSupport = (doc.getObject("XY_Plane"), [""])
sketch9.MapMode = "FlatFace"
sketch9.AttachmentOffset = App.Placement(App.Vector(0, 0, 0.2125 * 25.4), App.Rotation())
sketch9.addGeometry(Part.LineSegment(App.Vector(-9.525, -32.258, 0), App.Vector(-9.525, -45.974, 0)), False)
sketch9.addGeometry(Part.LineSegment(App.Vector(-9.525, -45.974, 0), App.Vector(9.525, -45.974, 0)), False)
sketch9.addGeometry(Part.LineSegment(App.Vector(9.525, -45.974, 0), App.Vector(9.525, -32.258, 0)), False)
sketch9.addGeometry(Part.LineSegment(App.Vector(9.525, -32.258, 0), App.Vector(-9.525, -32.258, 0)), False)
sketch9.addConstraint(Sketcher.Constraint("Coincident", 0, 2, 1, 1))
sketch9.addConstraint(Sketcher.Constraint("Coincident", 1, 2, 2, 1))
sketch9.addConstraint(Sketcher.Constraint("Coincident", 2, 2, 3, 1))
sketch9.addConstraint(Sketcher.Constraint("Coincident", 3, 2, 0, 1))
sketch9.addConstraint(Sketcher.Constraint("Vertical", 0))
sketch9.addConstraint(Sketcher.Constraint("Horizontal", 1))
sketch9.addConstraint(Sketcher.Constraint("Vertical", 2))
sketch9.addConstraint(Sketcher.Constraint("Horizontal", 3))
sketch9.addConstraint(Sketcher.Constraint("DistanceX", 1, 1, 1, 2, Q("0.75 in")))
sketch9.addConstraint(Sketcher.Constraint("DistanceY", 0, 2, 0, 1, Q("0.54 in")))
sketch9.addConstraint(Sketcher.Constraint("DistanceY", 0, 2, -1, 1, Q("1.81 in")))
sketch9.addConstraint(Sketcher.Constraint("DistanceX", 0, 2, -1, 1, Q("0.375 in")))
pocket8 = body.newObject("PartDesign::Pocket", "Pocket007")
pocket8.Profile = sketch9
pocket8.Type = "ThroughAll"

# Sketch on XY plane
sketch10 = body.newObject("Sketcher::SketchObject", "Sketch009")
sketch10.AttachmentSupport = (doc.getObject("XY_Plane"), [""])
sketch10.MapMode = "FlatFace"
sketch10.addGeometry(Part.ArcOfCircle(Part.Circle(App.Vector(0, 0, 0), App.Vector(0, 0, 1), 72.951706), math.radians(-160.492169), math.radians(-157.696582)), False)
sketch10.addGeometry(Part.LineSegment(App.Vector(-68.763976, -24.361178, 0), App.Vector(-68.763976, 24.361178, 0)), False)
sketch10.addGeometry(Part.ArcOfCircle(Part.Circle(App.Vector(0, 0, 0), App.Vector(0, 0, 1), 72.951706), math.radians(157.696582), math.radians(160.492169)), False)
sketch10.addGeometry(Part.LineSegment(App.Vector(-67.493976, 27.686, 0), App.Vector(-67.493976, -27.686, 0)), False)
sketch10.addGeometry(Part.ArcOfCircle(Part.Circle(App.Vector(0, 0, 0), App.Vector(0, 0, 1), 72.951706), math.radians(-22.303418), math.radians(-19.507831)), False)
sketch10.addGeometry(Part.LineSegment(App.Vector(67.493976, -27.686, 0), App.Vector(67.493976, 27.686, 0)), False)
sketch10.addGeometry(Part.ArcOfCircle(Part.Circle(App.Vector(0, 0, 0), App.Vector(0, 0, 1), 72.951706), math.radians(19.507831), math.radians(22.303418)), False)
sketch10.addGeometry(Part.LineSegment(App.Vector(68.763976, 24.361178, 0), App.Vector(68.763976, -24.361178, 0)), False)
sketch10.addConstraint(Sketcher.Constraint("Coincident", 0, 1, 1, 1))
sketch10.addConstraint(Sketcher.Constraint("Coincident", 1, 2, 2, 2))
sketch10.addConstraint(Sketcher.Constraint("Coincident", 2, 1, 3, 1))
sketch10.addConstraint(Sketcher.Constraint("Coincident", 3, 2, 0, 2))
sketch10.addConstraint(Sketcher.Constraint("Coincident", 4, 1, 5, 1))
sketch10.addConstraint(Sketcher.Constraint("Coincident", 5, 2, 6, 2))
sketch10.addConstraint(Sketcher.Constraint("Coincident", 6, 1, 7, 1))
sketch10.addConstraint(Sketcher.Constraint("Coincident", 7, 2, 4, 2))
sketch10.addConstraint(Sketcher.Constraint("Vertical", 1))
sketch10.addConstraint(Sketcher.Constraint("Vertical", 3))
sketch10.addConstraint(Sketcher.Constraint("Vertical", 5))
sketch10.addConstraint(Sketcher.Constraint("Vertical", 7))
sketch10.addConstraint(Sketcher.Constraint("Coincident", 0, 3, -1, 1))
sketch10.addConstraint(Sketcher.Constraint("Coincident", 2, 3, -1, 1))
sketch10.addConstraint(Sketcher.Constraint("Coincident", 4, 3, -1, 1))
sketch10.addConstraint(Sketcher.Constraint("Coincident", 6, 3, -1, 1))
sketch10.addConstraint(Sketcher.Constraint("Equal", 0, 2))
sketch10.addConstraint(Sketcher.Constraint("Equal", 2, 4))
sketch10.addConstraint(Sketcher.Constraint("Equal", 4, 6))
sketch10.addConstraint(Sketcher.Constraint("Horizontal", 3, 2, 4, 1))
sketch10.addConstraint(Sketcher.Constraint("Horizontal", 1, 2, 6, 1))
sketch10.addConstraint(Sketcher.Constraint("DistanceY", 3, 2, 3, 1, Q("2.18 in")))
sketch10.addConstraint(Sketcher.Constraint("DistanceX", 1, 2, 2, 1, Q("0.05 in")))
sketch10.addConstraint(Sketcher.Constraint("Radius", 0, 72.951706))
pocket9 = body.newObject("PartDesign::Pocket", "Pocket008")
pocket9.Profile = sketch10
pocket9.Type = "ThroughAll"
pocket9.Reversed = True
doc.recompute()

fillet2 = body.newObject("PartDesign::Fillet", "Fillet001")
fillet2.Base = (pocket9, edges_at(pocket9, [
    (-67.494, 27.686, 2.699),
    (-67.494, -27.686, 2.699),
    (-68.764, 24.361, 2.699),
    (-68.764, -24.361, 2.699),
]))
fillet2.Radius = Q("0.1 in")
doc.recompute()

fillet3 = body.newObject("PartDesign::Fillet", "Fillet002")
fillet3.Base = (fillet2, edges_at(fillet2, [
    (67.494, -27.686, 2.699),
    (67.494, 27.686, 2.699),
    (68.764, -24.361, 2.699),
    (68.764, 24.361, 2.699),
]))
fillet3.Radius = Q("0.1 in")

doc.recompute()
